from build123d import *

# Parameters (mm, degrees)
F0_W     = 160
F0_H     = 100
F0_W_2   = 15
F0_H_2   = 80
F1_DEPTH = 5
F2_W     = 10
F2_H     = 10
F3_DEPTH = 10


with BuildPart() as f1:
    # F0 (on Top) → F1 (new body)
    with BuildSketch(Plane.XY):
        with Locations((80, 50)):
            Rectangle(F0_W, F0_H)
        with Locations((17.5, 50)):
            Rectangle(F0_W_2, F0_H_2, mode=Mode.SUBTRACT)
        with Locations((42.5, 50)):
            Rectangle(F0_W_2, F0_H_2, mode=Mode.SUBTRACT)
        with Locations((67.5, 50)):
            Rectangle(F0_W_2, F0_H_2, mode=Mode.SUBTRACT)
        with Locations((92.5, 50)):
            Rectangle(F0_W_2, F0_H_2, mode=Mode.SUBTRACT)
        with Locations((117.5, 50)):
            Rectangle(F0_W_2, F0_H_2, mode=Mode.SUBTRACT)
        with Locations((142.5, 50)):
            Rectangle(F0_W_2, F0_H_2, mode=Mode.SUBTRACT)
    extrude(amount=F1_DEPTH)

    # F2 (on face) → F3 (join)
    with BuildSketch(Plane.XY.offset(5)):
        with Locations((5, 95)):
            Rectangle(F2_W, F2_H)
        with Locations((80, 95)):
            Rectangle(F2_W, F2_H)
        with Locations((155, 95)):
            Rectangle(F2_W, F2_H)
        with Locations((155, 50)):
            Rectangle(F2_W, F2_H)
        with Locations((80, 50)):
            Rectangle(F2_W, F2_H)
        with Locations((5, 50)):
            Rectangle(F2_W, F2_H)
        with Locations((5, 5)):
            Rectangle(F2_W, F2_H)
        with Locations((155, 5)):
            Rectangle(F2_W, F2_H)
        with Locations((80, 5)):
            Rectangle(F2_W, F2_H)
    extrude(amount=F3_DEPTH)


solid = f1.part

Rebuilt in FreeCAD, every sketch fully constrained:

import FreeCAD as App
import Part
import Sketcher
from FreeCAD import Vector
Q = App.Units.Quantity

doc = App.newDocument("Part")
body = doc.addObject("PartDesign::Body", "Body")

# Sketch on XY plane
sketch1 = body.newObject("Sketcher::SketchObject", "Sketch")
sketch1.AttachmentSupport = (doc.getObject("XY_Plane"), [""])
sketch1.MapMode = "FlatFace"
sketch1.addGeometry(Part.LineSegment(Vector(0, 100, 0), Vector(0, 0, 0)), False)
sketch1.addGeometry(Part.LineSegment(Vector(0, 0, 0), Vector(160, 0, 0)), False)
sketch1.addGeometry(Part.LineSegment(Vector(160, 0, 0), Vector(160, 100, 0)), False)
sketch1.addGeometry(Part.LineSegment(Vector(160, 100, 0), Vector(0, 100, 0)), False)
sketch1.addGeometry(Part.LineSegment(Vector(25, 10, 0), Vector(10, 10, 0)), False)
sketch1.addGeometry(Part.LineSegment(Vector(10, 10, 0), Vector(10, 90, 0)), False)
sketch1.addGeometry(Part.LineSegment(Vector(10, 90, 0), Vector(25, 90, 0)), False)
sketch1.addGeometry(Part.LineSegment(Vector(25, 90, 0), Vector(25, 10, 0)), False)
sketch1.addGeometry(Part.LineSegment(Vector(50, 10, 0), Vector(35, 10, 0)), False)
sketch1.addGeometry(Part.LineSegment(Vector(35, 10, 0), Vector(35, 90, 0)), False)
sketch1.addGeometry(Part.LineSegment(Vector(35, 90, 0), Vector(50, 90, 0)), False)
sketch1.addGeometry(Part.LineSegment(Vector(50, 90, 0), Vector(50, 10, 0)), False)
sketch1.addGeometry(Part.LineSegment(Vector(75, 10, 0), Vector(60, 10, 0)), False)
sketch1.addGeometry(Part.LineSegment(Vector(60, 10, 0), Vector(60, 90, 0)), False)
sketch1.addGeometry(Part.LineSegment(Vector(60, 90, 0), Vector(75, 90, 0)), False)
sketch1.addGeometry(Part.LineSegment(Vector(75, 90, 0), Vector(75, 10, 0)), False)
sketch1.addGeometry(Part.LineSegment(Vector(100, 10, 0), Vector(85, 10, 0)), False)
sketch1.addGeometry(Part.LineSegment(Vector(85, 10, 0), Vector(85, 90, 0)), False)
sketch1.addGeometry(Part.LineSegment(Vector(85, 90, 0), Vector(100, 90, 0)), False)
sketch1.addGeometry(Part.LineSegment(Vector(100, 90, 0), Vector(100, 10, 0)), False)
sketch1.addGeometry(Part.LineSegment(Vector(125, 10, 0), Vector(110, 10, 0)), False)
sketch1.addGeometry(Part.LineSegment(Vector(110, 10, 0), Vector(110, 90, 0)), False)
sketch1.addGeometry(Part.LineSegment(Vector(110, 90, 0), Vector(125, 90, 0)), False)
sketch1.addGeometry(Part.LineSegment(Vector(125, 90, 0), Vector(125, 10, 0)), False)
sketch1.addGeometry(Part.LineSegment(Vector(150, 10, 0), Vector(135, 10, 0)), False)
sketch1.addGeometry(Part.LineSegment(Vector(135, 10, 0), Vector(135, 90, 0)), False)
sketch1.addGeometry(Part.LineSegment(Vector(135, 90, 0), Vector(150, 90, 0)), False)
sketch1.addGeometry(Part.LineSegment(Vector(150, 90, 0), Vector(150, 10, 0)), False)
sketch1.addConstraint(Sketcher.Constraint("Coincident", 0, 2, 1, 1))
sketch1.addConstraint(Sketcher.Constraint("Coincident", 1, 2, 2, 1))
sketch1.addConstraint(Sketcher.Constraint("Coincident", 2, 2, 3, 1))
sketch1.addConstraint(Sketcher.Constraint("Coincident", 3, 2, 0, 1))
sketch1.addConstraint(Sketcher.Constraint("Coincident", 4, 2, 5, 1))
sketch1.addConstraint(Sketcher.Constraint("Coincident", 5, 2, 6, 1))
sketch1.addConstraint(Sketcher.Constraint("Coincident", 6, 2, 7, 1))
sketch1.addConstraint(Sketcher.Constraint("Coincident", 7, 2, 4, 1))
sketch1.addConstraint(Sketcher.Constraint("Coincident", 8, 2, 9, 1))
sketch1.addConstraint(Sketcher.Constraint("Coincident", 9, 2, 10, 1))
sketch1.addConstraint(Sketcher.Constraint("Coincident", 10, 2, 11, 1))
sketch1.addConstraint(Sketcher.Constraint("Coincident", 11, 2, 8, 1))
sketch1.addConstraint(Sketcher.Constraint("Coincident", 12, 2, 13, 1))
sketch1.addConstraint(Sketcher.Constraint("Coincident", 13, 2, 14, 1))
sketch1.addConstraint(Sketcher.Constraint("Coincident", 14, 2, 15, 1))
sketch1.addConstraint(Sketcher.Constraint("Coincident", 15, 2, 12, 1))
sketch1.addConstraint(Sketcher.Constraint("Coincident", 16, 2, 17, 1))
sketch1.addConstraint(Sketcher.Constraint("Coincident", 17, 2, 18, 1))
sketch1.addConstraint(Sketcher.Constraint("Coincident", 18, 2, 19, 1))
sketch1.addConstraint(Sketcher.Constraint("Coincident", 19, 2, 16, 1))
sketch1.addConstraint(Sketcher.Constraint("Coincident", 20, 2, 21, 1))
sketch1.addConstraint(Sketcher.Constraint("Coincident", 21, 2, 22, 1))
sketch1.addConstraint(Sketcher.Constraint("Coincident", 22, 2, 23, 1))
sketch1.addConstraint(Sketcher.Constraint("Coincident", 23, 2, 20, 1))
sketch1.addConstraint(Sketcher.Constraint("Coincident", 24, 2, 25, 1))
sketch1.addConstraint(Sketcher.Constraint("Coincident", 25, 2, 26, 1))
sketch1.addConstraint(Sketcher.Constraint("Coincident", 26, 2, 27, 1))
sketch1.addConstraint(Sketcher.Constraint("Coincident", 27, 2, 24, 1))
sketch1.addConstraint(Sketcher.Constraint("Vertical", 0))
sketch1.addConstraint(Sketcher.Constraint("Horizontal", 1))
sketch1.addConstraint(Sketcher.Constraint("Vertical", 2))
sketch1.addConstraint(Sketcher.Constraint("Horizontal", 3))
sketch1.addConstraint(Sketcher.Constraint("Horizontal", 4))
sketch1.addConstraint(Sketcher.Constraint("Vertical", 5))
sketch1.addConstraint(Sketcher.Constraint("Horizontal", 6))
sketch1.addConstraint(Sketcher.Constraint("Vertical", 7))
sketch1.addConstraint(Sketcher.Constraint("Horizontal", 8))
sketch1.addConstraint(Sketcher.Constraint("Vertical", 9))
sketch1.addConstraint(Sketcher.Constraint("Horizontal", 10))
sketch1.addConstraint(Sketcher.Constraint("Vertical", 11))
sketch1.addConstraint(Sketcher.Constraint("Horizontal", 12))
sketch1.addConstraint(Sketcher.Constraint("Vertical", 13))
sketch1.addConstraint(Sketcher.Constraint("Horizontal", 14))
sketch1.addConstraint(Sketcher.Constraint("Vertical", 15))
sketch1.addConstraint(Sketcher.Constraint("Horizontal", 16))
sketch1.addConstraint(Sketcher.Constraint("Vertical", 17))
sketch1.addConstraint(Sketcher.Constraint("Horizontal", 18))
sketch1.addConstraint(Sketcher.Constraint("Vertical", 19))
sketch1.addConstraint(Sketcher.Constraint("Horizontal", 20))
sketch1.addConstraint(Sketcher.Constraint("Vertical", 21))
sketch1.addConstraint(Sketcher.Constraint("Horizontal", 22))
sketch1.addConstraint(Sketcher.Constraint("Vertical", 23))
sketch1.addConstraint(Sketcher.Constraint("Horizontal", 24))
sketch1.addConstraint(Sketcher.Constraint("Vertical", 25))
sketch1.addConstraint(Sketcher.Constraint("Horizontal", 26))
sketch1.addConstraint(Sketcher.Constraint("Vertical", 27))
sketch1.addConstraint(Sketcher.Constraint("Coincident", 0, 2, -1, 1))
sketch1.addConstraint(Sketcher.Constraint("Horizontal", 7, 2, 8, 2))
sketch1.addConstraint(Sketcher.Constraint("Horizontal", 6, 2, 9, 2))
sketch1.addConstraint(Sketcher.Constraint("Horizontal", 11, 2, 12, 2))
sketch1.addConstraint(Sketcher.Constraint("Horizontal", 10, 2, 13, 2))
sketch1.addConstraint(Sketcher.Constraint("Horizontal", 15, 2, 16, 2))
sketch1.addConstraint(Sketcher.Constraint("Horizontal", 14, 2, 17, 2))
sketch1.addConstraint(Sketcher.Constraint("Horizontal", 19, 2, 20, 2))
sketch1.addConstraint(Sketcher.Constraint("Horizontal", 18, 2, 21, 2))
sketch1.addConstraint(Sketcher.Constraint("Horizontal", 23, 2, 24, 2))
sketch1.addConstraint(Sketcher.Constraint("Horizontal", 22, 2, 25, 2))
sketch1.addConstraint(Sketcher.Constraint("Equal", 6, 8))
sketch1.addConstraint(Sketcher.Constraint("Equal", 10, 12))
sketch1.addConstraint(Sketcher.Constraint("Equal", 14, 16))
sketch1.addConstraint(Sketcher.Constraint("Equal", 18, 20))
sketch1.addConstraint(Sketcher.Constraint("Equal", 22, 24))
sketch1.addConstraint(Sketcher.Constraint("DistanceX", 1, 1, 1, 2, Q("160 mm")))
sketch1.addConstraint(Sketcher.Constraint("DistanceX", 4, 2, 4, 1, Q("15 mm")))
sketch1.addConstraint(Sketcher.Constraint("DistanceY", 0, 2, 0, 1, Q("100 mm")))
sketch1.addConstraint(Sketcher.Constraint("DistanceY", 5, 1, 5, 2, Q("80 mm")))
sketch1.addConstraint(Sketcher.Constraint("DistanceX", -1, 1, 4, 2, Q("10 mm")))
sketch1.addConstraint(Sketcher.Constraint("DistanceY", -1, 1, 4, 2, Q("10 mm")))
sketch1.addConstraint(Sketcher.Constraint("DistanceX", -1, 1, 8, 2, Q("35 mm")))
sketch1.addConstraint(Sketcher.Constraint("DistanceX", -1, 1, 12, 2, Q("60 mm")))
sketch1.addConstraint(Sketcher.Constraint("DistanceX", -1, 1, 16, 2, Q("85 mm")))
sketch1.addConstraint(Sketcher.Constraint("DistanceX", -1, 1, 20, 2, Q("110 mm")))
sketch1.addConstraint(Sketcher.Constraint("DistanceX", -1, 1, 24, 2, Q("135 mm")))
pad1 = body.newObject("PartDesign::Pad", "Pad")
pad1.Profile = sketch1
pad1.Length = 5

# Sketch on XY plane
sketch2 = body.newObject("Sketcher::SketchObject", "Sketch001")
sketch2.AttachmentSupport = (doc.getObject("XY_Plane"), [""])
sketch2.MapMode = "FlatFace"
sketch2.AttachmentOffset = App.Placement(Vector(0, 0, 5), App.Rotation())
sketch2.addGeometry(Part.LineSegment(Vector(0, 100, 0), Vector(0, 90, 0)), False)
sketch2.addGeometry(Part.LineSegment(Vector(0, 90, 0), Vector(10, 90, 0)), False)
sketch2.addGeometry(Part.LineSegment(Vector(10, 90, 0), Vector(10, 100, 0)), False)
sketch2.addGeometry(Part.LineSegment(Vector(10, 100, 0), Vector(0, 100, 0)), False)
sketch2.addGeometry(Part.LineSegment(Vector(75, 100, 0), Vector(75, 90, 0)), False)
sketch2.addGeometry(Part.LineSegment(Vector(75, 90, 0), Vector(85, 90, 0)), False)
sketch2.addGeometry(Part.LineSegment(Vector(85, 90, 0), Vector(85, 100, 0)), False)
sketch2.addGeometry(Part.LineSegment(Vector(85, 100, 0), Vector(75, 100, 0)), False)
sketch2.addGeometry(Part.LineSegment(Vector(150, 100, 0), Vector(150, 90, 0)), False)
sketch2.addGeometry(Part.LineSegment(Vector(150, 90, 0), Vector(160, 90, 0)), False)
sketch2.addGeometry(Part.LineSegment(Vector(160, 90, 0), Vector(160, 100, 0)), False)
sketch2.addGeometry(Part.LineSegment(Vector(160, 100, 0), Vector(150, 100, 0)), False)
sketch2.addGeometry(Part.LineSegment(Vector(150, 55, 0), Vector(150, 45, 0)), False)
sketch2.addGeometry(Part.LineSegment(Vector(150, 45, 0), Vector(160, 45, 0)), False)
sketch2.addGeometry(Part.LineSegment(Vector(160, 45, 0), Vector(160, 55, 0)), False)
sketch2.addGeometry(Part.LineSegment(Vector(160, 55, 0), Vector(150, 55, 0)), False)
sketch2.addGeometry(Part.LineSegment(Vector(75, 55, 0), Vector(75, 45, 0)), False)
sketch2.addGeometry(Part.LineSegment(Vector(75, 45, 0), Vector(85, 45, 0)), False)
sketch2.addGeometry(Part.LineSegment(Vector(85, 45, 0), Vector(85, 55, 0)), False)
sketch2.addGeometry(Part.LineSegment(Vector(85, 55, 0), Vector(75, 55, 0)), False)
sketch2.addGeometry(Part.LineSegment(Vector(0, 55, 0), Vector(0, 45, 0)), False)
sketch2.addGeometry(Part.LineSegment(Vector(0, 45, 0), Vector(10, 45, 0)), False)
sketch2.addGeometry(Part.LineSegment(Vector(10, 45, 0), Vector(10, 55, 0)), False)
sketch2.addGeometry(Part.LineSegment(Vector(10, 55, 0), Vector(0, 55, 0)), False)
sketch2.addGeometry(Part.LineSegment(Vector(0, 10, 0), Vector(0, 0, 0)), False)
sketch2.addGeometry(Part.LineSegment(Vector(0, 0, 0), Vector(10, 0, 0)), False)
sketch2.addGeometry(Part.LineSegment(Vector(10, 0, 0), Vector(10, 10, 0)), False)
sketch2.addGeometry(Part.LineSegment(Vector(10, 10, 0), Vector(0, 10, 0)), False)
sketch2.addGeometry(Part.LineSegment(Vector(150, 10, 0), Vector(150, 0, 0)), False)
sketch2.addGeometry(Part.LineSegment(Vector(150, 0, 0), Vector(160, 0, 0)), False)
sketch2.addGeometry(Part.LineSegment(Vector(160, 0, 0), Vector(160, 10, 0)), False)
sketch2.addGeometry(Part.LineSegment(Vector(160, 10, 0), Vector(150, 10, 0)), False)
sketch2.addGeometry(Part.LineSegment(Vector(75, 10, 0), Vector(75, 0, 0)), False)
sketch2.addGeometry(Part.LineSegment(Vector(75, 0, 0), Vector(85, 0, 0)), False)
sketch2.addGeometry(Part.LineSegment(Vector(85, 0, 0), Vector(85, 10, 0)), False)
sketch2.addGeometry(Part.LineSegment(Vector(85, 10, 0), Vector(75, 10, 0)), False)
sketch2.addConstraint(Sketcher.Constraint("Coincident", 0, 2, 1, 1))
sketch2.addConstraint(Sketcher.Constraint("Coincident", 1, 2, 2, 1))
sketch2.addConstraint(Sketcher.Constraint("Coincident", 2, 2, 3, 1))
sketch2.addConstraint(Sketcher.Constraint("Coincident", 3, 2, 0, 1))
sketch2.addConstraint(Sketcher.Constraint("Coincident", 4, 2, 5, 1))
sketch2.addConstraint(Sketcher.Constraint("Coincident", 5, 2, 6, 1))
sketch2.addConstraint(Sketcher.Constraint("Coincident", 6, 2, 7, 1))
sketch2.addConstraint(Sketcher.Constraint("Coincident", 7, 2, 4, 1))
sketch2.addConstraint(Sketcher.Constraint("Coincident", 8, 2, 9, 1))
sketch2.addConstraint(Sketcher.Constraint("Coincident", 9, 2, 10, 1))
sketch2.addConstraint(Sketcher.Constraint("Coincident", 10, 2, 11, 1))
sketch2.addConstraint(Sketcher.Constraint("Coincident", 11, 2, 8, 1))
sketch2.addConstraint(Sketcher.Constraint("Coincident", 12, 2, 13, 1))
sketch2.addConstraint(Sketcher.Constraint("Coincident", 13, 2, 14, 1))
sketch2.addConstraint(Sketcher.Constraint("Coincident", 14, 2, 15, 1))
sketch2.addConstraint(Sketcher.Constraint("Coincident", 15, 2, 12, 1))
sketch2.addConstraint(Sketcher.Constraint("Coincident", 16, 2, 17, 1))
sketch2.addConstraint(Sketcher.Constraint("Coincident", 17, 2, 18, 1))
sketch2.addConstraint(Sketcher.Constraint("Coincident", 18, 2, 19, 1))
sketch2.addConstraint(Sketcher.Constraint("Coincident", 19, 2, 16, 1))
sketch2.addConstraint(Sketcher.Constraint("Coincident", 20, 2, 21, 1))
sketch2.addConstraint(Sketcher.Constraint("Coincident", 21, 2, 22, 1))
sketch2.addConstraint(Sketcher.Constraint("Coincident", 22, 2, 23, 1))
sketch2.addConstraint(Sketcher.Constraint("Coincident", 23, 2, 20, 1))
sketch2.addConstraint(Sketcher.Constraint("Coincident", 24, 2, 25, 1))
sketch2.addConstraint(Sketcher.Constraint("Coincident", 25, 2, 26, 1))
sketch2.addConstraint(Sketcher.Constraint("Coincident", 26, 2, 27, 1))
sketch2.addConstraint(Sketcher.Constraint("Coincident", 27, 2, 24, 1))
sketch2.addConstraint(Sketcher.Constraint("Coincident", 28, 2, 29, 1))
sketch2.addConstraint(Sketcher.Constraint("Coincident", 29, 2, 30, 1))
sketch2.addConstraint(Sketcher.Constraint("Coincident", 30, 2, 31, 1))
sketch2.addConstraint(Sketcher.Constraint("Coincident", 31, 2, 28, 1))
sketch2.addConstraint(Sketcher.Constraint("Coincident", 32, 2, 33, 1))
sketch2.addConstraint(Sketcher.Constraint("Coincident", 33, 2, 34, 1))
sketch2.addConstraint(Sketcher.Constraint("Coincident", 34, 2, 35, 1))
sketch2.addConstraint(Sketcher.Constraint("Coincident", 35, 2, 32, 1))
sketch2.addConstraint(Sketcher.Constraint("Vertical", 0))
sketch2.addConstraint(Sketcher.Constraint("Horizontal", 1))
sketch2.addConstraint(Sketcher.Constraint("Vertical", 2))
sketch2.addConstraint(Sketcher.Constraint("Horizontal", 3))
sketch2.addConstraint(Sketcher.Constraint("Vertical", 4))
sketch2.addConstraint(Sketcher.Constraint("Horizontal", 5))
sketch2.addConstraint(Sketcher.Constraint("Vertical", 6))
sketch2.addConstraint(Sketcher.Constraint("Horizontal", 7))
sketch2.addConstraint(Sketcher.Constraint("Vertical", 8))
sketch2.addConstraint(Sketcher.Constraint("Horizontal", 9))
sketch2.addConstraint(Sketcher.Constraint("Vertical", 10))
sketch2.addConstraint(Sketcher.Constraint("Horizontal", 11))
sketch2.addConstraint(Sketcher.Constraint("Vertical", 12))
sketch2.addConstraint(Sketcher.Constraint("Horizontal", 13))
sketch2.addConstraint(Sketcher.Constraint("Vertical", 14))
sketch2.addConstraint(Sketcher.Constraint("Horizontal", 15))
sketch2.addConstraint(Sketcher.Constraint("Vertical", 16))
sketch2.addConstraint(Sketcher.Constraint("Horizontal", 17))
sketch2.addConstraint(Sketcher.Constraint("Vertical", 18))
sketch2.addConstraint(Sketcher.Constraint("Horizontal", 19))
sketch2.addConstraint(Sketcher.Constraint("Vertical", 20))
sketch2.addConstraint(Sketcher.Constraint("Horizontal", 21))
sketch2.addConstraint(Sketcher.Constraint("Vertical", 22))
sketch2.addConstraint(Sketcher.Constraint("Horizontal", 23))
sketch2.addConstraint(Sketcher.Constraint("Vertical", 24))
sketch2.addConstraint(Sketcher.Constraint("Horizontal", 25))
sketch2.addConstraint(Sketcher.Constraint("Vertical", 26))
sketch2.addConstraint(Sketcher.Constraint("Horizontal", 27))
sketch2.addConstraint(Sketcher.Constraint("Vertical", 28))
sketch2.addConstraint(Sketcher.Constraint("Horizontal", 29))
sketch2.addConstraint(Sketcher.Constraint("Vertical", 30))
sketch2.addConstraint(Sketcher.Constraint("Horizontal", 31))
sketch2.addConstraint(Sketcher.Constraint("Vertical", 32))
sketch2.addConstraint(Sketcher.Constraint("Horizontal", 33))
sketch2.addConstraint(Sketcher.Constraint("Vertical", 34))
sketch2.addConstraint(Sketcher.Constraint("Horizontal", 35))
sketch2.addConstraint(Sketcher.Constraint("Coincident", 24, 2, -1, 1))
sketch2.addConstraint(Sketcher.Constraint("PointOnObject", 0, 2, -2))
sketch2.addConstraint(Sketcher.Constraint("PointOnObject", 20, 2, -2))
sketch2.addConstraint(Sketcher.Constraint("PointOnObject", 28, 2, -1))
sketch2.addConstraint(Sketcher.Constraint("PointOnObject", 32, 2, -1))
sketch2.addConstraint(Sketcher.Constraint("Horizontal", 1, 2, 4, 2))
sketch2.addConstraint(Sketcher.Constraint("Horizontal", 3, 2, 6, 2))
sketch2.addConstraint(Sketcher.Constraint("Horizontal", 5, 2, 8, 2))
sketch2.addConstraint(Sketcher.Constraint("Horizontal", 7, 2, 10, 2))
sketch2.addConstraint(Sketcher.Constraint("Horizontal", 13, 2, 16, 2))
sketch2.addConstraint(Sketcher.Constraint("Horizontal", 15, 2, 18, 2))
sketch2.addConstraint(Sketcher.Constraint("Horizontal", 17, 2, 20, 2))
sketch2.addConstraint(Sketcher.Constraint("Horizontal", 19, 2, 22, 2))
sketch2.addConstraint(Sketcher.Constraint("Horizontal", 27, 2, 30, 2))
sketch2.addConstraint(Sketcher.Constraint("Horizontal", 31, 2, 34, 2))
sketch2.addConstraint(Sketcher.Constraint("Vertical", 11, 2, 12, 2))
sketch2.addConstraint(Sketcher.Constraint("Vertical", 10, 2, 13, 2))
sketch2.addConstraint(Sketcher.Constraint("Vertical", 7, 2, 16, 2))
sketch2.addConstraint(Sketcher.Constraint("Vertical", 6, 2, 17, 2))
sketch2.addConstraint(Sketcher.Constraint("Vertical", 2, 2, 21, 2))
sketch2.addConstraint(Sketcher.Constraint("Vertical", 22, 2, 25, 2))
sketch2.addConstraint(Sketcher.Constraint("Vertical", 15, 2, 28, 2))
sketch2.addConstraint(Sketcher.Constraint("Vertical", 14, 2, 29, 2))
sketch2.addConstraint(Sketcher.Constraint("Vertical", 19, 2, 32, 2))
sketch2.addConstraint(Sketcher.Constraint("Vertical", 18, 2, 33, 2))
sketch2.addConstraint(Sketcher.Constraint("Equal", 3, 5))
sketch2.addConstraint(Sketcher.Constraint("Equal", 7, 9))
sketch2.addConstraint(Sketcher.Constraint("Equal", 35, 0))
sketch2.addConstraint(Sketcher.Constraint("Equal", 10, 12))
sketch2.addConstraint(Sketcher.Constraint("Equal", 22, 24))
sketch2.addConstraint(Sketcher.Constraint("DistanceX", 1, 1, 1, 2, Q("10 mm")))
sketch2.addConstraint(Sketcher.Constraint("DistanceY", -1, 1, 0, 2, Q("90 mm")))
sketch2.addConstraint(Sketcher.Constraint("DistanceX", -1, 1, 4, 2, Q("75 mm")))
sketch2.addConstraint(Sketcher.Constraint("DistanceX", -1, 1, 8, 2, Q("150 mm")))
sketch2.addConstraint(Sketcher.Constraint("DistanceY", -1, 1, 12, 2, Q("45 mm")))
pad2 = body.newObject("PartDesign::Pad", "Pad001")
pad2.Profile = sketch2
pad2.Length = 10

doc.recompute()
